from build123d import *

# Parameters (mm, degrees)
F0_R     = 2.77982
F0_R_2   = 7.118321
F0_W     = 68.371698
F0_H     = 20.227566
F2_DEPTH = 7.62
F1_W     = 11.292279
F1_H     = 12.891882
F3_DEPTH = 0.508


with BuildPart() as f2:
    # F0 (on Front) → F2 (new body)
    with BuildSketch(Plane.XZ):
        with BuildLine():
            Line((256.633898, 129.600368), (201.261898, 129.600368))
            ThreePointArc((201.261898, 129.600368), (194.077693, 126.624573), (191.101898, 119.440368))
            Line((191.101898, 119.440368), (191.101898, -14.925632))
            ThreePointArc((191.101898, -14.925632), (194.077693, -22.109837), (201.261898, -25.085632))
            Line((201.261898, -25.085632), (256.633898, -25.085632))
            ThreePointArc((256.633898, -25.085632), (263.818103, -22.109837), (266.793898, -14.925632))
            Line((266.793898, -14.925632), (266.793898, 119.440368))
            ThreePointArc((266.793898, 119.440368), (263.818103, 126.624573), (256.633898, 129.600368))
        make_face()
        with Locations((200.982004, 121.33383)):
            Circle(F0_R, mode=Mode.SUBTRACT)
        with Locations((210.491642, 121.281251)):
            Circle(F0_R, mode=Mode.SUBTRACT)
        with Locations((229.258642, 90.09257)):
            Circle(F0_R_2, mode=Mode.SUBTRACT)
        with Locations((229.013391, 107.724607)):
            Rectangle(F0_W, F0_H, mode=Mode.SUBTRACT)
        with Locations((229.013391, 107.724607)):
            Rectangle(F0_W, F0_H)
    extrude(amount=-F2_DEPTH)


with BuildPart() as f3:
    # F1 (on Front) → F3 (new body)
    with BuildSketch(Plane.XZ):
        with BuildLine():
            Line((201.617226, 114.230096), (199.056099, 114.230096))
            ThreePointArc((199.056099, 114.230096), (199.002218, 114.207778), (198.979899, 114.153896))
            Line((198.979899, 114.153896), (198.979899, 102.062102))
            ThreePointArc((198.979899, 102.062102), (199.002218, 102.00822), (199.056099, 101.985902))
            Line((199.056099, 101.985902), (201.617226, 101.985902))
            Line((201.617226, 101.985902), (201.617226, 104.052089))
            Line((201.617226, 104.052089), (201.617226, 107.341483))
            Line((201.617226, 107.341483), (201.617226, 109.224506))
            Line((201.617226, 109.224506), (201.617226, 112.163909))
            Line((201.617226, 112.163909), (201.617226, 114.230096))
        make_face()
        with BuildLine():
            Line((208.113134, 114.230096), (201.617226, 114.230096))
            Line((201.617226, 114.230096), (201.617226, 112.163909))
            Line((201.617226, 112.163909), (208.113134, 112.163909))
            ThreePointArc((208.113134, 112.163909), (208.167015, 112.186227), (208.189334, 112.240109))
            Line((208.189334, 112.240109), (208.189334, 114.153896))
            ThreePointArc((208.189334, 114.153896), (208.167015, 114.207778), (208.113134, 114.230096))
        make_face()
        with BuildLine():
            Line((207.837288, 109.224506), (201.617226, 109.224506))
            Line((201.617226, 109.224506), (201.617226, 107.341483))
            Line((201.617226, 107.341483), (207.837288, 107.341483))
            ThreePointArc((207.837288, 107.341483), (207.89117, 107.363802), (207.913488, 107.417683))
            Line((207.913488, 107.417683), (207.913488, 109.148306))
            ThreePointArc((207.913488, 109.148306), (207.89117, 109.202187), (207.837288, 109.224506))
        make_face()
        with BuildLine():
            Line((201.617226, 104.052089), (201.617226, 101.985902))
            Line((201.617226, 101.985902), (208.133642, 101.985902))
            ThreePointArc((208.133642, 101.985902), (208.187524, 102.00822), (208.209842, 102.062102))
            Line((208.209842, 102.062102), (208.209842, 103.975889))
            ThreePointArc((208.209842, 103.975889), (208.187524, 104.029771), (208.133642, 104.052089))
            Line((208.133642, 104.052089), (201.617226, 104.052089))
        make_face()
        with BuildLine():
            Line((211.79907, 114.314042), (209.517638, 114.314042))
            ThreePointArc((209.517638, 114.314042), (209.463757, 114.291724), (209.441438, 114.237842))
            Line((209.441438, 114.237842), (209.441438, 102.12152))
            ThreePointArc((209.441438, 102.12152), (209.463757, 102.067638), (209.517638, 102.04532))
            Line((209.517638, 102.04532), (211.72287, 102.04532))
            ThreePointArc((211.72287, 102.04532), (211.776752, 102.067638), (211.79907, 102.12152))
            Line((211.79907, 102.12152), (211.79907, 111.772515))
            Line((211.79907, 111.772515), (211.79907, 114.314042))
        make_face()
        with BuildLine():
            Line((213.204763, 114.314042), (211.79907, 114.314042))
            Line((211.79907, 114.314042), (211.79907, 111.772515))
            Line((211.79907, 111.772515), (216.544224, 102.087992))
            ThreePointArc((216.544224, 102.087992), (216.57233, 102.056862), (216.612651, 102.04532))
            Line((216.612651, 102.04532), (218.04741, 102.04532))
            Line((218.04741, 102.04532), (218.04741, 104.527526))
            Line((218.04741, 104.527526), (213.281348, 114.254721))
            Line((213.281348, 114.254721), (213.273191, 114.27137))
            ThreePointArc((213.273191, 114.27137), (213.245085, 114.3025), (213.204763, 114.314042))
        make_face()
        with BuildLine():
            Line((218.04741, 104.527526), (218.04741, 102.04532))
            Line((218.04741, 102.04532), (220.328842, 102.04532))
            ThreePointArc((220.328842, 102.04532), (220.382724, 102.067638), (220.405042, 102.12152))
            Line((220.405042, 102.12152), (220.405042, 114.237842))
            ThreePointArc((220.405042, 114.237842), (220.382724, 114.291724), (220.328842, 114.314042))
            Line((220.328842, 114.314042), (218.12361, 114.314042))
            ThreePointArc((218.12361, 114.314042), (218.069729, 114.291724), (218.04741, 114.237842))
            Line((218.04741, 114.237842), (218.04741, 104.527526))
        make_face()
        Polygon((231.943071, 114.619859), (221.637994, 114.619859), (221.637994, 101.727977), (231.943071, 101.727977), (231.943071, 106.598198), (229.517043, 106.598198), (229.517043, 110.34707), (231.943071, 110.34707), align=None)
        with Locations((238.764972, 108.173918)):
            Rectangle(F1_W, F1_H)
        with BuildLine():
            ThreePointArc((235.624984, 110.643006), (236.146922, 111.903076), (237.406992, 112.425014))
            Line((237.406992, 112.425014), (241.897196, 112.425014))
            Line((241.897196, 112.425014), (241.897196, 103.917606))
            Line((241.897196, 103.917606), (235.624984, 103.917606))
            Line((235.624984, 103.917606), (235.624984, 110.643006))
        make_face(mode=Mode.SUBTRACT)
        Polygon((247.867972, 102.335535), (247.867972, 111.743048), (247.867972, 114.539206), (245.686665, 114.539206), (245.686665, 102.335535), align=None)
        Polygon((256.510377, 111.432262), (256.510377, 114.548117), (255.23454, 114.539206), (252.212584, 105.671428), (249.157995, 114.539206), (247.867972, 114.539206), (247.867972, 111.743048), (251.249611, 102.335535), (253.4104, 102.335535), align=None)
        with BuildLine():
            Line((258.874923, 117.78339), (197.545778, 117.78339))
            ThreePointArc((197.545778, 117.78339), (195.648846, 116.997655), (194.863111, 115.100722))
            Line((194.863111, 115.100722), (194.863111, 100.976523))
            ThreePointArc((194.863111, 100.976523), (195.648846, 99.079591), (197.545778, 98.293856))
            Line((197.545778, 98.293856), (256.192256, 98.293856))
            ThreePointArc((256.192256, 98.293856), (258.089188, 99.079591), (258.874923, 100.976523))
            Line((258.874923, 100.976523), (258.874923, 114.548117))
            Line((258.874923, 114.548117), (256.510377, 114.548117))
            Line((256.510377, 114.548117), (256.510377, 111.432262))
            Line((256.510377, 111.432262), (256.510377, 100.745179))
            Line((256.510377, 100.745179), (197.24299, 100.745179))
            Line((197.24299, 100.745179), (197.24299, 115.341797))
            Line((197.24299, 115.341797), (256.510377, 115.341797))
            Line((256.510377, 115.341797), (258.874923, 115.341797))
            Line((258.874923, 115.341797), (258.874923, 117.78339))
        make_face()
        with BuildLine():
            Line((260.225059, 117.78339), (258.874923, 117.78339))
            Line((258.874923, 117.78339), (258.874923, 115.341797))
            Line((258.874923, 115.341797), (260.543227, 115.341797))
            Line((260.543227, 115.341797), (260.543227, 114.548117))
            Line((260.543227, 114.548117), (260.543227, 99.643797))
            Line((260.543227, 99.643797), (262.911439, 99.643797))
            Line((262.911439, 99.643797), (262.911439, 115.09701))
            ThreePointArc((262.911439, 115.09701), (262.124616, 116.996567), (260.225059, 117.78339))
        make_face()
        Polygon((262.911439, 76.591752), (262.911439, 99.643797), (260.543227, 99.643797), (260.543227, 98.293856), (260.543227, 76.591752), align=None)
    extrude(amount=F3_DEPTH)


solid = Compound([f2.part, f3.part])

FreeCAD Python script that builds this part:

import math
import FreeCAD as App
import Part
import Sketcher

V = App.Vector
Q = App.Units.Quantity


def add_polygon(sketch, points):
    """Adds a closed chain of lines whose ends are joined by coincident constraints."""
    first, n = sketch.GeometryCount, len(points)
    for a, b in zip(points, points[1:] + points[:1]):
        sketch.addGeometry(Part.LineSegment(App.Vector(*a, 0), App.Vector(*b, 0)), False)
    for i in range(n):
        sketch.addConstraint(Sketcher.Constraint("Coincident", first + i, 2, first + (i + 1) % n, 1))

doc = App.newDocument("Part")
body = doc.addObject("PartDesign::Body", "Body")

# Sketch on XZ plane
sketch1 = doc.addObject("Sketcher::SketchObject", "Sketch")
body.addObject(sketch1)
sketch1.AttachmentSupport = (doc.XZ_Plane, [""])
sketch1.MapMode = "FlatFace"
sketch1.addGeometry(Part.LineSegment(V(256.6, 129.6, 0), V(201.3, 129.6, 0)), False)
sketch1.addGeometry(Part.ArcOfCircle(Part.Circle(V(201.3, 119.4, 0), V(0, 0, 1), 10.2), math.radians(90), math.radians(180)), False)
sketch1.addGeometry(Part.LineSegment(V(191.1, 119.4, 0), V(191.1, -14.9, 0)), False)
sketch1.addGeometry(Part.ArcOfCircle(Part.Circle(V(201.3, -14.9, 0), V(0, 0, 1), 10.2), math.radians(180), math.radians(270)), False)
sketch1.addGeometry(Part.LineSegment(V(201.3, -25.1, 0), V(256.6, -25.1, 0)), False)
sketch1.addGeometry(Part.ArcOfCircle(Part.Circle(V(256.6, -14.9, 0), V(0, 0, 1), 10.2), math.radians(-90), math.radians(0)), False)
sketch1.addGeometry(Part.LineSegment(V(266.8, -14.9, 0), V(266.8, 119.4, 0)), False)
sketch1.addGeometry(Part.ArcOfCircle(Part.Circle(V(256.6, 119.4, 0), V(0, 0, 1), 10.2), math.radians(0), math.radians(90)), False)
sketch1.addGeometry(Part.Circle(V(229.3, 90.1, 0), V(0, 0, 1), 7.1), False)
sketch1.addGeometry(Part.Circle(V(201, 121.3, 0), V(0, 0, 1), 2.8), False)
sketch1.addGeometry(Part.Circle(V(210.5, 121.3, 0), V(0, 0, 1), 2.8), False)
sketch1.addConstraint(Sketcher.Constraint("Tangent", 0, 2, 1, 1))
sketch1.addConstraint(Sketcher.Constraint("Tangent", 1, 2, 2, 1))
sketch1.addConstraint(Sketcher.Constraint("Tangent", 2, 2, 3, 1))
sketch1.addConstraint(Sketcher.Constraint("Tangent", 3, 2, 4, 1))
sketch1.addConstraint(Sketcher.Constraint("Tangent", 4, 2, 5, 1))
sketch1.addConstraint(Sketcher.Constraint("Tangent", 5, 2, 6, 1))
sketch1.addConstraint(Sketcher.Constraint("Tangent", 6, 2, 7, 1))
sketch1.addConstraint(Sketcher.Constraint("Tangent", 7, 2, 0, 1))
sketch1.addConstraint(Sketcher.Constraint("Horizontal", 0))
sketch1.addConstraint(Sketcher.Constraint("Vertical", 2))
sketch1.addConstraint(Sketcher.Constraint("Horizontal", 4))
sketch1.addConstraint(Sketcher.Constraint("Vertical", 6))
sketch1.addConstraint(Sketcher.Constraint("Equal", 1, 3))
sketch1.addConstraint(Sketcher.Constraint("Equal", 3, 5))
sketch1.addConstraint(Sketcher.Constraint("Equal", 5, 7))
sketch1.addConstraint(Sketcher.Constraint("Equal", 9, 10))
sketch1.addConstraint(Sketcher.Constraint("Radius", 1, Q("0.4 in")))
sketch1.addConstraint(Sketcher.Constraint("DistanceX", 0, 2, 0, 1, Q("2.18 in")))
sketch1.addConstraint(Sketcher.Constraint("DistanceY", 2, 2, 2, 1, Q("5.29 in")))
sketch1.addConstraint(Sketcher.Constraint("Diameter", 9, 5.55964))
sketch1.addConstraint(Sketcher.Constraint("Diameter", 8, 14.236642))
sketch1.addConstraint(Sketcher.Constraint("DistanceX", -1, 1, 5, 3, 256.633898))
sketch1.addConstraint(Sketcher.Constraint("DistanceY", 8, 3, 7, 3, 29.347798))
sketch1.addConstraint(Sketcher.Constraint("DistanceX", 10, 3, 8, 3, 18.767))
sketch1.addConstraint(Sketcher.Constraint("DistanceY", -1, 1, 1, 3, 119.440368))
sketch1.addConstraint(Sketcher.Constraint("DistanceX", -1, 1, 8, 3, 229.258642))
sketch1.addConstraint(Sketcher.Constraint("DistanceY", -1, 1, 9, 3, 121.33383))
sketch1.addConstraint(Sketcher.Constraint("DistanceY", -1, 1, 10, 3, 121.281251))
sketch1.addConstraint(Sketcher.Constraint("DistanceX", 9, 3, 8, 3, 28.276638))
pad1 = doc.addObject("PartDesign::Pad", "Pad")
body.addObject(pad1)
pad1.Profile = sketch1
pad1.Length = Q("0.3 in")
pad1.Reversed = True
body2 = doc.addObject("PartDesign::Body", "Body001")
body2.AllowCompound = True

# Sketch on XZ plane
sketch2 = doc.addObject("Sketcher::SketchObject", "Sketch001")
body2.addObject(sketch2)
sketch2.AttachmentSupport = (doc.getObject("XZ_Plane001"), [""])
sketch2.MapMode = "FlatFace"
sketch2.addGeometry(Part.ArcOfCircle(Part.Circle(V(199.056, 114.154, 0), V(0, 0, 1), 0.076), math.radians(90), math.radians(180)), False)  # 0
sketch2.addGeometry(Part.LineSegment(V(198.98, 114.154, 0), V(198.98, 102.062, 0)), False)  # 1
sketch2.addGeometry(Part.ArcOfCircle(Part.Circle(V(199.056, 102.062, 0), V(0, 0, 1), 0.076), math.radians(-180), math.radians(-90)), False)  # 2
sketch2.addGeometry(Part.LineSegment(V(199.056, 101.986, 0), V(208.134, 101.986, 0)), False)  # 3
sketch2.addGeometry(Part.ArcOfCircle(Part.Circle(V(208.134, 102.062, 0), V(0, 0, 1), 0.076), math.radians(-90), math.radians(0)), False)  # 4
sketch2.addGeometry(Part.LineSegment(V(208.21, 102.062, 0), V(208.21, 103.976, 0)), False)  # 5
sketch2.addGeometry(Part.ArcOfCircle(Part.Circle(V(208.134, 103.976, 0), V(0, 0, 1), 0.076), math.radians(0), math.radians(90)), False)  # 6
sketch2.addGeometry(Part.LineSegment(V(208.134, 104.052, 0), V(201.617, 104.052, 0)), False)  # 7
sketch2.addGeometry(Part.LineSegment(V(201.617, 104.052, 0), V(201.617, 107.341, 0)), False)  # 8
sketch2.addGeometry(Part.LineSegment(V(201.617, 107.341, 0), V(207.837, 107.341, 0)), False)  # 9
sketch2.addGeometry(Part.ArcOfCircle(Part.Circle(V(207.837, 107.418, 0), V(0, 0, 1), 0.076), math.radians(-90), math.radians(0)), False)  # 10
sketch2.addGeometry(Part.LineSegment(V(207.913, 107.418, 0), V(207.913, 109.148, 0)), False)  # 11
sketch2.addGeometry(Part.ArcOfCircle(Part.Circle(V(207.837, 109.148, 0), V(0, 0, 1), 0.076), math.radians(0), math.radians(90)), False)  # 12
sketch2.addGeometry(Part.LineSegment(V(207.837, 109.225, 0), V(201.617, 109.225, 0)), False)  # 13
sketch2.addGeometry(Part.LineSegment(V(201.617, 109.225, 0), V(201.617, 112.164, 0)), False)  # 14
sketch2.addGeometry(Part.LineSegment(V(201.617, 112.164, 0), V(208.113, 112.164, 0)), False)  # 15
sketch2.addGeometry(Part.ArcOfCircle(Part.Circle(V(208.113, 112.24, 0), V(0, 0, 1), 0.076), math.radians(-90), math.radians(0)), False)  # 16
sketch2.addGeometry(Part.LineSegment(V(208.189, 112.24, 0), V(208.189, 114.154, 0)), False)  # 17
sketch2.addGeometry(Part.ArcOfCircle(Part.Circle(V(208.113, 114.154, 0), V(0, 0, 1), 0.076), math.radians(0), math.radians(90)), False)  # 18
sketch2.addGeometry(Part.LineSegment(V(208.113, 114.23, 0), V(199.056, 114.23, 0)), False)  # 19
sketch2.addGeometry(Part.ArcOfCircle(Part.Circle(V(209.518, 114.238, 0), V(0, 0, 1), 0.076), math.radians(90), math.radians(180)), False)  # 20
sketch2.addGeometry(Part.LineSegment(V(209.441, 114.238, 0), V(209.441, 102.122, 0)), False)  # 21
sketch2.addGeometry(Part.ArcOfCircle(Part.Circle(V(209.518, 102.122, 0), V(0, 0, 1), 0.076), math.radians(-180), math.radians(-90)), False)  # 22
sketch2.addGeometry(Part.LineSegment(V(209.518, 102.045, 0), V(211.723, 102.045, 0)), False)  # 23
sketch2.addGeometry(Part.ArcOfCircle(Part.Circle(V(211.723, 102.122, 0), V(0, 0, 1), 0.076), math.radians(-90), math.radians(0)), False)  # 24
sketch2.addGeometry(Part.LineSegment(V(211.799, 102.122, 0), V(211.799, 111.773, 0)), False)  # 25
sketch2.addGeometry(Part.LineSegment(V(211.799, 111.773, 0), V(216.544, 102.088, 0)), False)  # 26
sketch2.addGeometry(Part.ArcOfCircle(Part.Circle(V(216.613, 102.122, 0), V(0, 0, 1), 0.076), math.radians(-154), math.radians(-90)), False)  # 27
sketch2.addGeometry(Part.LineSegment(V(216.613, 102.045, 0), V(220.329, 102.045, 0)), False)  # 28
sketch2.addGeometry(Part.ArcOfCircle(Part.Circle(V(220.329, 102.122, 0), V(0, 0, 1), 0.076), math.radians(-90), math.radians(0)), False)  # 29
sketch2.addGeometry(Part.LineSegment(V(220.405, 102.122, 0), V(220.405, 114.238, 0)), False)  # 30
sketch2.addGeometry(Part.ArcOfCircle(Part.Circle(V(220.329, 114.238, 0), V(0, 0, 1), 0.076), math.radians(0), math.radians(90)), False)  # 31
sketch2.addGeometry(Part.LineSegment(V(220.329, 114.314, 0), V(218.124, 114.314, 0)), False)  # 32
sketch2.addGeometry(Part.ArcOfCircle(Part.Circle(V(218.124, 114.238, 0), V(0, 0, 1), 0.076), math.radians(90), math.radians(180)), False)  # 33
sketch2.addGeometry(Part.LineSegment(V(218.047, 114.238, 0), V(218.047, 104.528, 0)), False)  # 34
sketch2.addGeometry(Part.LineSegment(V(218.047, 104.528, 0), V(213.281, 114.255, 0)), False)  # 35
sketch2.addGeometry(Part.LineSegment(V(213.281, 114.255, 0), V(213.273, 114.271, 0)), False)  # 36
sketch2.addGeometry(Part.ArcOfCircle(Part.Circle(V(213.205, 114.238, 0), V(0, 0, 1), 0.076), math.radians(26), math.radians(90)), False)  # 37
sketch2.addGeometry(Part.LineSegment(V(213.205, 114.314, 0), V(209.518, 114.314, 0)), False)  # 38
add_polygon(sketch2, [(231.943, 114.62), (221.638, 114.62), (221.638, 101.728), (231.943, 101.728), (231.943, 106.598), (229.517, 106.598), (229.517, 110.347), (231.943, 110.347)])  # lines 39-46
add_polygon(sketch2, [(233.119, 114.62), (233.119, 101.728), (244.411, 101.728), (244.411, 114.62)])  # lines 47-50
sketch2.addGeometry(Part.LineSegment(V(235.625, 103.918, 0), V(235.625, 110.643, 0)), False)  # 51
sketch2.addGeometry(Part.ArcOfCircle(Part.Circle(V(237.407, 110.643, 0), V(0, 0, 1), 1.782), math.radians(90), math.radians(180)), False)  # 52
sketch2.addGeometry(Part.LineSegment(V(237.407, 112.425, 0), V(241.897, 112.425, 0)), False)  # 53
sketch2.addGeometry(Part.LineSegment(V(241.897, 112.425, 0), V(241.897, 103.918, 0)), False)  # 54
sketch2.addGeometry(Part.LineSegment(V(241.897, 103.918, 0), V(235.625, 103.918, 0)), False)  # 55
sketch2.addGeometry(Part.LineSegment(V(247.868, 102.336, 0), V(247.868, 111.743, 0)), False)  # 56
sketch2.addGeometry(Part.LineSegment(V(247.868, 111.743, 0), V(251.25, 102.336, 0)), False)  # 57
sketch2.addGeometry(Part.LineSegment(V(251.25, 102.336, 0), V(253.41, 102.336, 0)), False)  # 58
sketch2.addGeometry(Part.LineSegment(V(253.41, 102.336, 0), V(256.51, 111.432, 0)), False)  # 59
sketch2.addGeometry(Part.LineSegment(V(256.51, 111.432, 0), V(256.51, 100.745, 0)), False)  # 60
sketch2.addGeometry(Part.LineSegment(V(256.51, 100.745, 0), V(197.243, 100.745, 0)), False)  # 61
sketch2.addGeometry(Part.LineSegment(V(197.243, 100.745, 0), V(197.243, 115.342, 0)), False)  # 62
sketch2.addGeometry(Part.LineSegment(V(197.243, 115.342, 0), V(260.543, 115.342, 0)), False)  # 63
sketch2.addGeometry(Part.LineSegment(V(260.543, 115.342, 0), V(260.543, 76.592, 0)), False)  # 64
sketch2.addGeometry(Part.LineSegment(V(260.543, 76.592, 0), V(262.911, 76.592, 0)), False)  # 65
sketch2.addGeometry(Part.LineSegment(V(262.911, 76.592, 0), V(262.911, 115.097, 0)), False)  # 66
sketch2.addGeometry(Part.ArcOfCircle(Part.Circle(V(260.225, 115.097, 0), V(0, 0, 1), 2.686), math.radians(0), math.radians(90)), False)  # 67
sketch2.addGeometry(Part.LineSegment(V(260.225, 117.783, 0), V(197.546, 117.783, 0)), False)  # 68
sketch2.addGeometry(Part.ArcOfCircle(Part.Circle(V(197.546, 115.101, 0), V(0, 0, 1), 2.683), math.radians(90), math.radians(180)), False)  # 69
sketch2.addGeometry(Part.LineSegment(V(194.863, 115.101, 0), V(194.863, 100.977, 0)), False)  # 70
sketch2.addGeometry(Part.ArcOfCircle(Part.Circle(V(197.546, 100.977, 0), V(0, 0, 1), 2.683), math.radians(-180), math.radians(-90)), False)  # 71
sketch2.addGeometry(Part.LineSegment(V(197.546, 98.294, 0), V(256.192, 98.294, 0)), False)  # 72
sketch2.addGeometry(Part.ArcOfCircle(Part.Circle(V(256.192, 100.977, 0), V(0, 0, 1), 2.683), math.radians(-90), math.radians(0)), False)  # 73
sketch2.addGeometry(Part.LineSegment(V(258.875, 100.977, 0), V(258.875, 114.548, 0)), False)  # 74
sketch2.addGeometry(Part.LineSegment(V(258.875, 114.548, 0), V(256.51, 114.548, 0)), False)  # 75
sketch2.addGeometry(Part.LineSegment(V(256.51, 114.548, 0), V(255.235, 114.539, 0)), False)  # 76
sketch2.addGeometry(Part.LineSegment(V(255.235, 114.539, 0), V(252.213, 105.671, 0)), False)  # 77
sketch2.addGeometry(Part.LineSegment(V(252.213, 105.671, 0), V(249.158, 114.539, 0)), False)  # 78
sketch2.addGeometry(Part.LineSegment(V(249.158, 114.539, 0), V(245.687, 114.539, 0)), False)  # 79
sketch2.addGeometry(Part.LineSegment(V(245.687, 114.539, 0), V(245.687, 102.336, 0)), False)  # 80
sketch2.addGeometry(Part.LineSegment(V(245.687, 102.336, 0), V(247.868, 102.336, 0)), False)  # 81
sketch2.addConstraint(Sketcher.Constraint("Tangent", 0, 2, 1, 1))
sketch2.addConstraint(Sketcher.Constraint("Tangent", 1, 2, 2, 1))
sketch2.addConstraint(Sketcher.Constraint("Tangent", 2, 2, 3, 1))
sketch2.addConstraint(Sketcher.Constraint("Coincident", 3, 2, 4, 1))
sketch2.addConstraint(Sketcher.Constraint("Coincident", 4, 2, 5, 1))
sketch2.addConstraint(Sketcher.Constraint("Coincident", 5, 2, 6, 1))
sketch2.addConstraint(Sketcher.Constraint("Coincident", 6, 2, 7, 1))
sketch2.addConstraint(Sketcher.Constraint("Coincident", 7, 2, 8, 1))
sketch2.addConstraint(Sketcher.Constraint("Coincident", 8, 2, 9, 1))
sketch2.addConstraint(Sketcher.Constraint("Tangent", 9, 2, 10, 1))
sketch2.addConstraint(Sketcher.Constraint("Tangent", 10, 2, 11, 1))
sketch2.addConstraint(Sketcher.Constraint("Tangent", 11, 2, 12, 1))
sketch2.addConstraint(Sketcher.Constraint("Tangent", 12, 2, 13, 1))
sketch2.addConstraint(Sketcher.Constraint("Coincident", 13, 2, 14, 1))
sketch2.addConstraint(Sketcher.Constraint("Coincident", 14, 2, 15, 1))
sketch2.addConstraint(Sketcher.Constraint("Tangent", 15, 2, 16, 1))
sketch2.addConstraint(Sketcher.Constraint("Tangent", 16, 2, 17, 1))
sketch2.addConstraint(Sketcher.Constraint("Tangent", 17, 2, 18, 1))
sketch2.addConstraint(Sketcher.Constraint("Tangent", 18, 2, 19, 1))
sketch2.addConstraint(Sketcher.Constraint("Tangent", 19, 2, 0, 1))
sketch2.addConstraint(Sketcher.Constraint("Tangent", 20, 2, 21, 1))
sketch2.addConstraint(Sketcher.Constraint("Tangent", 21, 2, 22, 1))
sketch2.addConstraint(Sketcher.Constraint("Tangent", 22, 2, 23, 1))
sketch2.addConstraint(Sketcher.Constraint("Coincident", 23, 2, 24, 1))
sketch2.addConstraint(Sketcher.Constraint("Coincident", 24, 2, 25, 1))
sketch2.addConstraint(Sketcher.Constraint("Coincident", 25, 2, 26, 1))
sketch2.addConstraint(Sketcher.Constraint("Coincident", 26, 2, 27, 1))
sketch2.addConstraint(Sketcher.Constraint("Coincident", 27, 2, 28, 1))
sketch2.addConstraint(Sketcher.Constraint("Coincident", 28, 2, 29, 1))
sketch2.addConstraint(Sketcher.Constraint("Coincident", 29, 2, 30, 1))
sketch2.addConstraint(Sketcher.Constraint("Coincident", 30, 2, 31, 1))
sketch2.addConstraint(Sketcher.Constraint("Coincident", 31, 2, 32, 1))
sketch2.addConstraint(Sketcher.Constraint("Tangent", 32, 2, 33, 1))
sketch2.addConstraint(Sketcher.Constraint("Tangent", 33, 2, 34, 1))
sketch2.addConstraint(Sketcher.Constraint("Coincident", 34, 2, 35, 1))
sketch2.addConstraint(Sketcher.Constraint("Coincident", 35, 2, 36, 1))
sketch2.addConstraint(Sketcher.Constraint("Coincident", 36, 2, 37, 1))
sketch2.addConstraint(Sketcher.Constraint("Coincident", 37, 2, 38, 1))
sketch2.addConstraint(Sketcher.Constraint("Tangent", 38, 2, 20, 1))
sketch2.addConstraint(Sketcher.Constraint("Tangent", 51, 2, 52, 2))
sketch2.addConstraint(Sketcher.Constraint("Tangent", 52, 1, 53, 1))
sketch2.addConstraint(Sketcher.Constraint("Coincident", 53, 2, 54, 1))
sketch2.addConstraint(Sketcher.Constraint("Coincident", 54, 2, 55, 1))
sketch2.addConstraint(Sketcher.Constraint("Coincident", 55, 2, 51, 1))
sketch2.addConstraint(Sketcher.Constraint("Coincident", 56, 2, 57, 1))
sketch2.addConstraint(Sketcher.Constraint("Coincident", 57, 2, 58, 1))
sketch2.addConstraint(Sketcher.Constraint("Coincident", 58, 2, 59, 1))
sketch2.addConstraint(Sketcher.Constraint("Coincident", 59, 2, 60, 1))
sketch2.addConstraint(Sketcher.Constraint("Coincident", 60, 2, 61, 1))
sketch2.addConstraint(Sketcher.Constraint("Coincident", 61, 2, 62, 1))
sketch2.addConstraint(Sketcher.Constraint("Coincident", 62, 2, 63, 1))
sketch2.addConstraint(Sketcher.Constraint("Coincident", 63, 2, 64, 1))
sketch2.addConstraint(Sketcher.Constraint("Coincident", 64, 2, 65, 1))
sketch2.addConstraint(Sketcher.Constraint("Coincident", 65, 2, 66, 1))
sketch2.addConstraint(Sketcher.Constraint("Tangent", 66, 2, 67, 1))
sketch2.addConstraint(Sketcher.Constraint("Tangent", 67, 2, 68, 1))
sketch2.addConstraint(Sketcher.Constraint("Tangent", 68, 2, 69, 1))
sketch2.addConstraint(Sketcher.Constraint("Tangent", 69, 2, 70, 1))
sketch2.addConstraint(Sketcher.Constraint("Tangent", 70, 2, 71, 1))
sketch2.addConstraint(Sketcher.Constraint("Tangent", 71, 2, 72, 1))
sketch2.addConstraint(Sketcher.Constraint("Tangent", 72, 2, 73, 1))
sketch2.addConstraint(Sketcher.Constraint("Tangent", 73, 2, 74, 1))
sketch2.addConstraint(Sketcher.Constraint("Coincident", 74, 2, 75, 1))
sketch2.addConstraint(Sketcher.Constraint("Coincident", 75, 2, 76, 1))
sketch2.addConstraint(Sketcher.Constraint("Coincident", 76, 2, 77, 1))
sketch2.addConstraint(Sketcher.Constraint("Coincident", 77, 2, 78, 1))
sketch2.addConstraint(Sketcher.Constraint("Coincident", 78, 2, 79, 1))
sketch2.addConstraint(Sketcher.Constraint("Coincident", 79, 2, 80, 1))
sketch2.addConstraint(Sketcher.Constraint("Coincident", 80, 2, 81, 1))
sketch2.addConstraint(Sketcher.Constraint("Coincident", 81, 2, 56, 1))
sketch2.addConstraint(Sketcher.Constraint("Vertical", 1))
sketch2.addConstraint(Sketcher.Constraint("Horizontal", 3))
sketch2.addConstraint(Sketcher.Constraint("Vertical", 5))
sketch2.addConstraint(Sketcher.Constraint("Horizontal", 7))
sketch2.addConstraint(Sketcher.Constraint("Vertical", 8))
sketch2.addConstraint(Sketcher.Constraint("Horizontal", 9))
sketch2.addConstraint(Sketcher.Constraint("Vertical", 11))
sketch2.addConstraint(Sketcher.Constraint("Horizontal", 13))
sketch2.addConstraint(Sketcher.Constraint("Vertical", 14))
sketch2.addConstraint(Sketcher.Constraint("Horizontal", 15))
sketch2.addConstraint(Sketcher.Constraint("Vertical", 17))
sketch2.addConstraint(Sketcher.Constraint("Horizontal", 19))
sketch2.addConstraint(Sketcher.Constraint("Vertical", 21))
sketch2.addConstraint(Sketcher.Constraint("Horizontal", 23))
sketch2.addConstraint(Sketcher.Constraint("Vertical", 25))
sketch2.addConstraint(Sketcher.Constraint("Horizontal", 28))
sketch2.addConstraint(Sketcher.Constraint("Vertical", 30))
sketch2.addConstraint(Sketcher.Constraint("Horizontal", 32))
sketch2.addConstraint(Sketcher.Constraint("Vertical", 34))
sketch2.addConstraint(Sketcher.Constraint("Horizontal", 38))
sketch2.addConstraint(Sketcher.Constraint("Horizontal", 39))
sketch2.addConstraint(Sketcher.Constraint("Vertical", 40))
sketch2.addConstraint(Sketcher.Constraint("Horizontal", 41))
sketch2.addConstraint(Sketcher.Constraint("Vertical", 42))
sketch2.addConstraint(Sketcher.Constraint("Horizontal", 43))
sketch2.addConstraint(Sketcher.Constraint("Vertical", 44))
sketch2.addConstraint(Sketcher.Constraint("Horizontal", 45))
sketch2.addConstraint(Sketcher.Constraint("Vertical", 46))
sketch2.addConstraint(Sketcher.Constraint("Vertical", 47))
sketch2.addConstraint(Sketcher.Constraint("Horizontal", 48))
sketch2.addConstraint(Sketcher.Constraint("Vertical", 49))
sketch2.addConstraint(Sketcher.Constraint("Horizontal", 50))
sketch2.addConstraint(Sketcher.Constraint("Vertical", 51))
sketch2.addConstraint(Sketcher.Constraint("Horizontal", 53))
sketch2.addConstraint(Sketcher.Constraint("Vertical", 54))
sketch2.addConstraint(Sketcher.Constraint("Horizontal", 55))
sketch2.addConstraint(Sketcher.Constraint("Vertical", 56))
sketch2.addConstraint(Sketcher.Constraint("Horizontal", 58))
sketch2.addConstraint(Sketcher.Constraint("Vertical", 60))
sketch2.addConstraint(Sketcher.Constraint("Horizontal", 61))
sketch2.addConstraint(Sketcher.Constraint("Vertical", 62))
sketch2.addConstraint(Sketcher.Constraint("Horizontal", 63))
sketch2.addConstraint(Sketcher.Constraint("Vertical", 64))
sketch2.addConstraint(Sketcher.Constraint("Horizontal", 65))
sketch2.addConstraint(Sketcher.Constraint("Vertical", 66))
sketch2.addConstraint(Sketcher.Constraint("Horizontal", 68))
sketch2.addConstraint(Sketcher.Constraint("Vertical", 70))
sketch2.addConstraint(Sketcher.Constraint("Horizontal", 72))
sketch2.addConstraint(Sketcher.Constraint("Vertical", 74))
sketch2.addConstraint(Sketcher.Constraint("Horizontal", 75))
sketch2.addConstraint(Sketcher.Constraint("Horizontal", 79))
sketch2.addConstraint(Sketcher.Constraint("Vertical", 80))
sketch2.addConstraint(Sketcher.Constraint("Horizontal", 81))
sketch2.addConstraint(Sketcher.Constraint("Equal", 0, 2))
sketch2.addConstraint(Sketcher.Constraint("Equal", 2, 4))
sketch2.addConstraint(Sketcher.Constraint("Equal", 4, 6))
sketch2.addConstraint(Sketcher.Constraint("Equal", 6, 10))
sketch2.addConstraint(Sketcher.Constraint("Equal", 10, 12))
sketch2.addConstraint(Sketcher.Constraint("Equal", 12, 16))
sketch2.addConstraint(Sketcher.Constraint("Equal", 16, 18))
sketch2.addConstraint(Sketcher.Constraint("Equal", 18, 20))
sketch2.addConstraint(Sketcher.Constraint("Equal", 20, 22))
sketch2.addConstraint(Sketcher.Constraint("Equal", 22, 24))
sketch2.addConstraint(Sketcher.Constraint("Equal", 24, 27))
sketch2.addConstraint(Sketcher.Constraint("Equal", 27, 29))
sketch2.addConstraint(Sketcher.Constraint("Equal", 29, 31))
sketch2.addConstraint(Sketcher.Constraint("Equal", 31, 33))
sketch2.addConstraint(Sketcher.Constraint("Equal", 33, 37))
sketch2.addConstraint(Sketcher.Constraint("Equal", 69, 71))
sketch2.addConstraint(Sketcher.Constraint("Equal", 71, 73))
sketch2.addConstraint(Sketcher.Constraint("Parallel", 26, 35))
sketch2.addConstraint(Sketcher.Constraint("Parallel", 59, 77))
sketch2.addConstraint(Sketcher.Constraint("Horizontal", 24, 3, 27, 3))
sketch2.addConstraint(Sketcher.Constraint("Horizontal", 20, 3, 31, 3))
sketch2.addConstraint(Sketcher.Constraint("Horizontal", 1, 2, 4, 2))
sketch2.addConstraint(Sketcher.Constraint("Horizontal", 6, 3, 5, 2))
sketch2.addConstraint(Sketcher.Constraint("Horizontal", 21, 2, 24, 2))
sketch2.addConstraint(Sketcher.Constraint("Horizontal", 24, 2, 29, 2))
sketch2.addConstraint(Sketcher.Constraint("Horizontal", 20, 2, 30, 2))
sketch2.addConstraint(Sketcher.Constraint("Horizontal", 41, 2, 47, 2))
sketch2.addConstraint(Sketcher.Constraint("Horizontal", 46, 2, 49, 2))
sketch2.addConstraint(Sketcher.Constraint("Horizontal", 76, 2, 78, 2))
sketch2.addConstraint(Sketcher.Constraint("Horizontal", 58, 2, 80, 2))
sketch2.addConstraint(Sketcher.Constraint("Vertical", 6, 3, 3, 2))
sketch2.addConstraint(Sketcher.Constraint("Vertical", 3, 2, 6, 2))
sketch2.addConstraint(Sketcher.Constraint("Vertical", 8, 2, 13, 2))
sketch2.addConstraint(Sketcher.Constraint("Vertical", 24, 3, 23, 2))
sketch2.addConstraint(Sketcher.Constraint("Vertical", 31, 3, 28, 2))
sketch2.addConstraint(Sketcher.Constraint("Vertical", 28, 2, 31, 2))
sketch2.addConstraint(Sketcher.Constraint("Vertical", 42, 2, 45, 2))
sketch2.addConstraint(Sketcher.Constraint("Vertical", 60, 2, 75, 2))
sketch2.addConstraint(Sketcher.Constraint("Equal", 23, 32))
sketch2.addConstraint(Sketcher.Constraint("Equal", 5, 17))
sketch2.addConstraint(Sketcher.Constraint("Radius", 0, Q("0.003 in")))
sketch2.addConstraint(Sketcher.Constraint("Radius", 67, 2.686382))
sketch2.addConstraint(Sketcher.Constraint("DistanceY", 51, 1, 51, 2, 6.7254))
sketch2.addConstraint(Sketcher.Constraint("DistanceY", 70, 2, 70, 1, 14.124199))
sketch2.addConstraint(Sketcher.Constraint("Radius", 52, 1.782008))
sketch2.addConstraint(Sketcher.Constraint("Radius", 69, 2.682667))
sketch2.addConstraint(Sketcher.Constraint("DistanceX", 15, 1, 15, 2, 6.495908))
sketch2.addConstraint(Sketcher.Constraint("DistanceX", 23, 1, 23, 2, 2.205232))
sketch2.addConstraint(Sketcher.Constraint("DistanceX", 28, 1, 28, 2, 3.716191))
sketch2.addConstraint(Sketcher.Constraint("DistanceX", 43, 2, 43, 1, 2.426028))
sketch2.addConstraint(Sketcher.Constraint("DistanceX", 48, 1, 48, 2, 11.292279))
sketch2.addConstraint(Sketcher.Constraint("DistanceX", 55, 2, 55, 1, 6.272212))
sketch2.addConstraint(Sketcher.Constraint("DistanceX", 58, 1, 58, 2, 2.160789))
sketch2.addConstraint(Sketcher.Constraint("DistanceX", 65, 1, 65, 2, 2.368212))
sketch2.addConstraint(Sketcher.Constraint("DistanceX", 68, 2, 68, 1, 62.679281))
sketch2.addConstraint(Sketcher.Constraint("DistanceX", 79, 2, 79, 1, 3.47133))
sketch2.addConstraint(Sketcher.Constraint("DistanceY", 21, 2, 21, 1, 12.116322))
sketch2.addConstraint(Sketcher.Constraint("DistanceY", 42, 1, 42, 2, 4.870221))
sketch2.addConstraint(Sketcher.Constraint("DistanceY", 46, 1, 46, 2, 4.272789))
sketch2.addConstraint(Sketcher.Constraint("DistanceY", 62, 1, 62, 2, 14.596618))
sketch2.addConstraint(Sketcher.Constraint("DistanceY", 80, 2, 80, 1, 12.203671))
sketch2.addConstraint(Sketcher.Constraint("DistanceX", -1, 1, 0, 3, 199.056099))
sketch2.addConstraint(Sketcher.Constraint("DistanceY", -1, 1, 4, 3, 102.0621))
sketch2.addConstraint(Sketcher.Constraint("DistanceX", -1, 1, 58, 2, 253.4104))
sketch2.addConstraint(Sketcher.Constraint("Distance", 36, 0.01854))
sketch2.addConstraint(Sketcher.Constraint("Distance", 57, 9.996839))
sketch2.addConstraint(Sketcher.Constraint("Distance", 76, 1.275868))
sketch2.addConstraint(Sketcher.Constraint("Distance", 77, 9.368549))
sketch2.addConstraint(Sketcher.Constraint("DistanceX", 3, 1, 3, 2, 9.077543))
sketch2.addConstraint(Sketcher.Constraint("DistanceX", 7, 2, 7, 1, 6.516416))
sketch2.addConstraint(Sketcher.Constraint("DistanceX", 9, 1, 9, 2, 6.220062))
sketch2.addConstraint(Sketcher.Constraint("DistanceX", 38, 2, 38, 1, 3.687125))
sketch2.addConstraint(Sketcher.Constraint("DistanceX", 39, 2, 39, 1, 10.305077))
sketch2.addConstraint(Sketcher.Constraint("DistanceX", 61, 2, 61, 1, 59.267387))
sketch2.addConstraint(Sketcher.Constraint("DistanceX", 63, 1, 63, 2, 63.300237))
sketch2.addConstraint(Sketcher.Constraint("DistanceX", 72, 1, 72, 2, 58.646478))
sketch2.addConstraint(Sketcher.Constraint("DistanceX", 81, 1, 81, 2, 2.181307))
sketch2.addConstraint(Sketcher.Constraint("DistanceY", 1, 2, 1, 1, 12.091794))
sketch2.addConstraint(Sketcher.Constraint("DistanceY", 5, 1, 5, 2, 1.913787))
sketch2.addConstraint(Sketcher.Constraint("DistanceY", 8, 1, 8, 2, 3.289394))
sketch2.addConstraint(Sketcher.Constraint("DistanceY", 11, 1, 11, 2, 1.730623))
sketch2.addConstraint(Sketcher.Constraint("DistanceY", 25, 1, 25, 2, 9.650995))
sketch2.addConstraint(Sketcher.Constraint("DistanceY", 34, 2, 34, 1, 9.710316))
sketch2.addConstraint(Sketcher.Constraint("DistanceY", 40, 2, 40, 1, 12.891882))
sketch2.addConstraint(Sketcher.Constraint("DistanceY", 56, 1, 56, 2, 9.407513))
sketch2.addConstraint(Sketcher.Constraint("DistanceY", 60, 2, 60, 1, 10.687083))
sketch2.addConstraint(Sketcher.Constraint("DistanceY", 64, 2, 64, 1, 38.750045))
sketch2.addConstraint(Sketcher.Constraint("DistanceY", 66, 1, 66, 2, 38.505258))
sketch2.addConstraint(Sketcher.Constraint("DistanceY", 74, 1, 74, 2, 13.571594))
sketch2.addConstraint(Sketcher.Constraint("DistanceX", -1, 1, 20, 3, 209.517638))
sketch2.addConstraint(Sketcher.Constraint("DistanceY", -1, 1, 20, 3, 114.237842))
sketch2.addConstraint(Sketcher.Constraint("DistanceX", -1, 1, 27, 3, 216.612651))
sketch2.addConstraint(Sketcher.Constraint("DistanceX", -1, 1, 33, 3, 218.12361))
sketch2.addConstraint(Sketcher.Constraint("DistanceX", -1, 1, 52, 3, 237.406992))
sketch2.addConstraint(Sketcher.Constraint("DistanceY", -1, 1, 67, 3, 115.097008))
sketch2.addConstraint(Sketcher.Constraint("DistanceX", -1, 1, 69, 3, 197.545778))
sketch2.addConstraint(Sketcher.Constraint("DistanceY", -1, 1, 26, 2, 102.087992))
sketch2.addConstraint(Sketcher.Constraint("DistanceX", -1, 1, 35, 2, 213.281348))
sketch2.addConstraint(Sketcher.Constraint("DistanceX", -1, 1, 36, 2, 213.273191))
sketch2.addConstraint(Sketcher.Constraint("DistanceY", -1, 1, 39, 2, 114.619859))
sketch2.addConstraint(Sketcher.Constraint("DistanceX", -1, 1, 41, 2, 231.943071))
sketch2.addConstraint(Sketcher.Constraint("DistanceX", -1, 1, 48, 2, 244.411112))
sketch2.addConstraint(Sketcher.Constraint("DistanceY", -1, 1, 56, 2, 111.743048))
sketch2.addConstraint(Sketcher.Constraint("DistanceY", -1, 1, 52, 3, 110.643006))
pad2 = doc.addObject("PartDesign::Pad", "Pad001")
body2.addObject(pad2)
pad2.Profile = sketch2
pad2.Length = Q("0.02 in")

doc.recompute()
